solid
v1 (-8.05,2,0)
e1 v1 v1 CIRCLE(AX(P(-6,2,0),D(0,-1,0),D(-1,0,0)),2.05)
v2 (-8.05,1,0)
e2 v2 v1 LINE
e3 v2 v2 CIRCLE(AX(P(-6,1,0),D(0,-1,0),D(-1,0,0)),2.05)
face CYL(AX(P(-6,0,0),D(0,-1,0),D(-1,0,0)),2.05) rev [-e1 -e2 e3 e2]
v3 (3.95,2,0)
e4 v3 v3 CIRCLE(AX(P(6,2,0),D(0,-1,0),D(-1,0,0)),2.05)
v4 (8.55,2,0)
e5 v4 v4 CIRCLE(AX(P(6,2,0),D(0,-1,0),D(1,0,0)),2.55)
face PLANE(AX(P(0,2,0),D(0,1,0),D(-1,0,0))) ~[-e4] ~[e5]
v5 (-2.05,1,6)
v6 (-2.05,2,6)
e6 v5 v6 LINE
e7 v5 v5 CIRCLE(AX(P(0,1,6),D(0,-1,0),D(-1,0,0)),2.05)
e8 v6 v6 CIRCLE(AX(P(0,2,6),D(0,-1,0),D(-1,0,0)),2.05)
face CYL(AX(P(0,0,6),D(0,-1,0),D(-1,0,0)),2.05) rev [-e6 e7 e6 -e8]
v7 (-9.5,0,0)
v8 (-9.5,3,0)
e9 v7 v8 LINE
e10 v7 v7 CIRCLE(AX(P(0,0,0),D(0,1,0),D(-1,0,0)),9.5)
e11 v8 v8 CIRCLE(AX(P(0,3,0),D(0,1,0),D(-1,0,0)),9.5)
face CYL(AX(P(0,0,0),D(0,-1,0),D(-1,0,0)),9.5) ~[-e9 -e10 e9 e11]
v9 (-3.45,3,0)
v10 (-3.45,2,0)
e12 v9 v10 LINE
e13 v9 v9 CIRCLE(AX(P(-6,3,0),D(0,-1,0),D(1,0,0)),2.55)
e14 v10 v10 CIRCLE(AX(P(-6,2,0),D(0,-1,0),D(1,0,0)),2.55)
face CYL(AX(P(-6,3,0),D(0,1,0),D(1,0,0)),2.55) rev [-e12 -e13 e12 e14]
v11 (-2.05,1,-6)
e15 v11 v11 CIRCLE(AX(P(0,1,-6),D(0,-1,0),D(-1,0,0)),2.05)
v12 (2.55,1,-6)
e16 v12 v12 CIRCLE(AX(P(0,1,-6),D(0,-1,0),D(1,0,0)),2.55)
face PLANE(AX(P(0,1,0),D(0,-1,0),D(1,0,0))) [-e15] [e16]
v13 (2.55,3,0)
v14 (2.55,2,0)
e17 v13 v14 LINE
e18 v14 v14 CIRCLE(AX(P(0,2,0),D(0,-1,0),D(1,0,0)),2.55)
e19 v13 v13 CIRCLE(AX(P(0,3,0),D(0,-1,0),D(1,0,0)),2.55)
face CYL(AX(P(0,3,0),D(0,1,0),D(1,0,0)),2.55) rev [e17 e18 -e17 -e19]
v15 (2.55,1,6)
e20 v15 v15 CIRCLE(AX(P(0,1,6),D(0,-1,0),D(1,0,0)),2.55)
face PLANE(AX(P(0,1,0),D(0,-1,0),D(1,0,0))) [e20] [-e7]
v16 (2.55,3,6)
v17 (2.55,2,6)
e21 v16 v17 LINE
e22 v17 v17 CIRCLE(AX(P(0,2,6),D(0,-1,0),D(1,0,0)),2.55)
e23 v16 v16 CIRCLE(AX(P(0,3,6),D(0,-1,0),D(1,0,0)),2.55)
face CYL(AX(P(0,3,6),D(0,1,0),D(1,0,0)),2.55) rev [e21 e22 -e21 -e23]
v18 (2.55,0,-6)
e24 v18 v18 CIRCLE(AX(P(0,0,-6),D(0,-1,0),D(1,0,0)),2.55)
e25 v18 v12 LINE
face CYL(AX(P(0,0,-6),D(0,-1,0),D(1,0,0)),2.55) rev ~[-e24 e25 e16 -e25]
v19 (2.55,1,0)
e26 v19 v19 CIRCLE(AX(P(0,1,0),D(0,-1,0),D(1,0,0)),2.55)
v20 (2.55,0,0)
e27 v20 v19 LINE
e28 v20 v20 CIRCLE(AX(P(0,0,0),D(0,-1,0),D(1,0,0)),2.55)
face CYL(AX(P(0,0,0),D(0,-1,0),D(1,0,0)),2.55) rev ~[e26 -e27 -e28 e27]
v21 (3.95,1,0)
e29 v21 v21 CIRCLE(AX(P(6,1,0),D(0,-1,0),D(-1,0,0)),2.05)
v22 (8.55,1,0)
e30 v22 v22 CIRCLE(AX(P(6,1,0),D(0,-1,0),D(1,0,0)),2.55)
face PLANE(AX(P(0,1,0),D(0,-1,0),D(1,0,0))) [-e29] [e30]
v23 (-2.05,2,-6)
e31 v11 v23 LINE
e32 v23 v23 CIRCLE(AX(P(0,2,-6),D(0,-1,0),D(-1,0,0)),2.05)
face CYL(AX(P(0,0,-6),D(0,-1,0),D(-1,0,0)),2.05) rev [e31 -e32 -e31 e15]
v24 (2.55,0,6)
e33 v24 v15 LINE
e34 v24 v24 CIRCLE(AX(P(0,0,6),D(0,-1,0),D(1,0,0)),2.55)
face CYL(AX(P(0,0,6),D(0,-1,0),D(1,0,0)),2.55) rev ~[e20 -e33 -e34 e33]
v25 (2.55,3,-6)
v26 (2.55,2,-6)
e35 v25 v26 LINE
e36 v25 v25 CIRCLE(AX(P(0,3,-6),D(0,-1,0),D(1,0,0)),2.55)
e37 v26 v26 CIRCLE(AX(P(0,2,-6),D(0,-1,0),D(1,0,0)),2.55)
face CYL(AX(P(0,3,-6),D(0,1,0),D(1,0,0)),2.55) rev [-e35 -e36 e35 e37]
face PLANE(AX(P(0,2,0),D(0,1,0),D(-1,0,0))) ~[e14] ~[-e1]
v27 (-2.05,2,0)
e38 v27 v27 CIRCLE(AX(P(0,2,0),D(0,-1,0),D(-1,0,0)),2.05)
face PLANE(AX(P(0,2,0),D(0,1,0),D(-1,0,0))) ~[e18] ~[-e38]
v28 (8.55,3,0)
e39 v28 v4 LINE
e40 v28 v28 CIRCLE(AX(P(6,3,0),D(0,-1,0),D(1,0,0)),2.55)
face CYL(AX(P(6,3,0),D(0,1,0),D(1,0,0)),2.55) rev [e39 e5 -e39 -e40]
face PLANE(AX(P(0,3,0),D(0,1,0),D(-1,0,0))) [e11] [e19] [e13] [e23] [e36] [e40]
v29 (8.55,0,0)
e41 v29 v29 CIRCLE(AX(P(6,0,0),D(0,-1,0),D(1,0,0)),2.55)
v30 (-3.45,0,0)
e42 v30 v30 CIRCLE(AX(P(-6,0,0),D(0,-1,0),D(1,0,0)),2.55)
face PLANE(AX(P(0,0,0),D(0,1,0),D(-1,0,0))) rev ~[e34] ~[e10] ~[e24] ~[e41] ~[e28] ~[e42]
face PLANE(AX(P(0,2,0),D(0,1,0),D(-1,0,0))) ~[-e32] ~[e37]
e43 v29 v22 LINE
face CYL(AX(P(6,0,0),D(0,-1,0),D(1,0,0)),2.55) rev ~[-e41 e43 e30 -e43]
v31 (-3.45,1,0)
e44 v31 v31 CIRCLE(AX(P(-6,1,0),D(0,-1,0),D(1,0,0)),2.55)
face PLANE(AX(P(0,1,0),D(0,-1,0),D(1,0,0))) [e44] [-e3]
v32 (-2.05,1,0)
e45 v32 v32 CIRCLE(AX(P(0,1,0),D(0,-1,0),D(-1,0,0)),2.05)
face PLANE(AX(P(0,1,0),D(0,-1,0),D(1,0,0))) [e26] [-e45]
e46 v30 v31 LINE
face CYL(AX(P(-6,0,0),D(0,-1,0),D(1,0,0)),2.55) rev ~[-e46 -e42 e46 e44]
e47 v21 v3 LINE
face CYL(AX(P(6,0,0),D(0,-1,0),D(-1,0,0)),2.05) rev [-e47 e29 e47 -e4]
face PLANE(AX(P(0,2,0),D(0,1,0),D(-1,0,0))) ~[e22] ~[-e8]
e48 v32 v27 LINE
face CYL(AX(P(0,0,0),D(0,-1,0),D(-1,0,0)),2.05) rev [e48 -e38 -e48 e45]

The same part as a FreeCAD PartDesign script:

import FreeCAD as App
import Part
import Sketcher

V = App.Vector
Q = App.Units.Quantity

doc = App.newDocument("Part")
body = doc.addObject("PartDesign::Body", "Body")

# Sketch on XZ plane
sketch1 = doc.addObject("Sketcher::SketchObject", "Sketch")
body.addObject(sketch1)
sketch1.AttachmentSupport = (doc.XZ_Plane, [""])
sketch1.MapMode = "FlatFace"
sketch1.addGeometry(Part.Circle(V(0, 0, 0), V(0, 0, 1), 9.5), False)
sketch1.addGeometry(Part.Circle(V(0, -6, 0), V(0, 0, 1), 2), False)
sketch1.addGeometry(Part.Circle(V(6, 0, 0), V(0, 0, 1), 2), False)
sketch1.addGeometry(Part.Circle(V(0, 0, 0), V(0, 0, 1), 2), False)
sketch1.addGeometry(Part.Circle(V(-6, 0, 0), V(0, 0, 1), 2), False)
sketch1.addGeometry(Part.Circle(V(0, 6, 0), V(0, 0, 1), 2), False)
sketch1.addConstraint(Sketcher.Constraint("Coincident", 0, 3, -1, 1))
sketch1.addConstraint(Sketcher.Constraint("Coincident", 3, 3, -1, 1))
sketch1.addConstraint(Sketcher.Constraint("Equal", 1, 2))
sketch1.addConstraint(Sketcher.Constraint("Equal", 2, 3))
sketch1.addConstraint(Sketcher.Constraint("Equal", 3, 4))
sketch1.addConstraint(Sketcher.Constraint("Equal", 4, 5))
sketch1.addConstraint(Sketcher.Constraint("Symmetric", 2, 3, 4, 3, -1, 1))
sketch1.addConstraint(Sketcher.Constraint("Symmetric", 1, 3, 5, 3, -1, 1))
sketch1.addConstraint(Sketcher.Constraint("PointOnObject", 1, 3, -2))
sketch1.addConstraint(Sketcher.Constraint("PointOnObject", 2, 3, -1))
sketch1.addConstraint(Sketcher.Constraint("Diameter", 0, Q("19 mm")))
sketch1.addConstraint(Sketcher.Constraint("Diameter", 1, Q("4.1 mm")))
sketch1.addConstraint(Sketcher.Constraint("DistanceY", 1, 3, -1, 1, Q("6 mm")))
sketch1.addConstraint(Sketcher.Constraint("DistanceX", -1, 1, 2, 3, Q("6 mm")))
pad1 = doc.addObject("PartDesign::Pad", "Pad")
body.addObject(pad1)
pad1.Profile = sketch1
pad1.Length = 3
pad1.Reversed = True

# Sketch on XZ plane
sketch2 = doc.addObject("Sketcher::SketchObject", "Sketch001")
body.addObject(sketch2)
sketch2.AttachmentSupport = (doc.XZ_Plane, [""])
sketch2.MapMode = "FlatFace"
sketch2.addGeometry(Part.Circle(V(-6, 0, 0), V(0, 0, 1), 2.5), False)
sketch2.addGeometry(Part.Circle(V(-6, 0, 0), V(0, 0, 1), 2), False)
sketch2.addGeometry(Part.Circle(V(0, 6, 0), V(0, 0, 1), 2.5), False)
sketch2.addGeometry(Part.Circle(V(0, 6, 0), V(0, 0, 1), 2), False)
sketch2.addGeometry(Part.Circle(V(0, 0, 0), V(0, 0, 1), 2.5), False)
sketch2.addGeometry(Part.Circle(V(6, 0, 0), V(0, 0, 1), 2.5), False)
sketch2.addGeometry(Part.Circle(V(6, 0, 0), V(0, 0, 1), 2), False)
sketch2.addGeometry(Part.Circle(V(0, -6, 0), V(0, 0, 1), 2.5), False)
sketch2.addGeometry(Part.Circle(V(0, -6, 0), V(0, 0, 1), 2), False)
sketch2.addConstraint(Sketcher.Constraint("Coincident", 4, 3, -1, 1))
sketch2.addConstraint(Sketcher.Constraint("Coincident", 1, 3, 0, 3))
sketch2.addConstraint(Sketcher.Constraint("Coincident", 3, 3, 2, 3))
sketch2.addConstraint(Sketcher.Constraint("Coincident", 6, 3, 5, 3))
sketch2.addConstraint(Sketcher.Constraint("Coincident", 8, 3, 7, 3))
sketch2.addConstraint(Sketcher.Constraint("Equal", 0, 2))
sketch2.addConstraint(Sketcher.Constraint("Equal", 1, 3))
sketch2.addConstraint(Sketcher.Constraint("Equal", 2, 4))
sketch2.addConstraint(Sketcher.Constraint("Equal", 4, 5))
sketch2.addConstraint(Sketcher.Constraint("Equal", 3, 6))
sketch2.addConstraint(Sketcher.Constraint("Equal", 5, 7))
sketch2.addConstraint(Sketcher.Constraint("Equal", 6, 8))
sketch2.addConstraint(Sketcher.Constraint("Symmetric", 0, 3, 5, 3, -1, 1))
sketch2.addConstraint(Sketcher.Constraint("Symmetric", 2, 3, 7, 3, -1, 1))
sketch2.addConstraint(Sketcher.Constraint("PointOnObject", 0, 3, -1))
sketch2.addConstraint(Sketcher.Constraint("PointOnObject", 2, 3, -2))
sketch2.addConstraint(Sketcher.Constraint("Diameter", 0, Q("5.1 mm")))
sketch2.addConstraint(Sketcher.Constraint("Diameter", 1, Q("4.1 mm")))
sketch2.addConstraint(Sketcher.Constraint("DistanceX", 0, 3, -1, 1, Q("6 mm")))
sketch2.addConstraint(Sketcher.Constraint("DistanceY", -1, 1, 2, 3, Q("6 mm")))
pocket1 = doc.addObject("PartDesign::Pocket", "Pocket")
body.addObject(pocket1)
pocket1.Profile = sketch2
pocket1.Length = 1
doc.recompute()

datumplane = doc.addObject("PartDesign::Plane", "DatumPlane")
body.addObject(datumplane)
datumplane.AttachmentSupport = (doc.XZ_Plane, [""])
datumplane.MapMode = "FlatFace"
datumplane.AttachmentOffset = App.Placement(V(0, 0, -1.5), App.Rotation())
mirrored = doc.addObject("PartDesign::Mirrored", "Mirrored")
body.addObject(mirrored)
mirrored.Originals = [pocket1]
mirrored.MirrorPlane = (datumplane, [""])
body.Tip = mirrored

doc.recompute()
